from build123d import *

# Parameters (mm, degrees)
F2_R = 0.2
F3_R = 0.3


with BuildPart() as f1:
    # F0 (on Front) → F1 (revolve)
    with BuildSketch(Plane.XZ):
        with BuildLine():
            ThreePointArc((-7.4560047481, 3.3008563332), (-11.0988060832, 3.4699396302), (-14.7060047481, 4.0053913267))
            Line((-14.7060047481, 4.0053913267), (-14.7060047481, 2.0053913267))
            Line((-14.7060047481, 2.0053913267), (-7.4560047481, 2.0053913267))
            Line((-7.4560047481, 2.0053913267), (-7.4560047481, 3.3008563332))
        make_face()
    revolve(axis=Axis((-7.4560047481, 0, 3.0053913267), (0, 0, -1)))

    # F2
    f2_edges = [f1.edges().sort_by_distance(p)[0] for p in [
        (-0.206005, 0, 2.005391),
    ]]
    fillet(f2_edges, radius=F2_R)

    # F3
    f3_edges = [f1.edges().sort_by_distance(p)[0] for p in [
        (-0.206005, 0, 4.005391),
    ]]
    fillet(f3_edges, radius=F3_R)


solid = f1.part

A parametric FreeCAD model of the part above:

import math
import FreeCAD as App
import Part
import Sketcher

V = App.Vector


def edges_at(feature, points):
    """Names of the edges that pass closest to the given points."""
    edges = feature.Shape.Edges
    near = lambda p: min(range(len(edges)), key=lambda i: edges[i].distToShape(Part.Vertex(*p))[0])
    return sorted({f"Edge{near(p) + 1}" for p in points})

doc = App.newDocument("Part")
body = doc.addObject("PartDesign::Body", "Body")

# Sketch on XZ plane
sketch1 = body.newObject("Sketcher::SketchObject", "Sketch")
sketch1.AttachmentSupport = (doc.getObject("XZ_Plane"), [""])
sketch1.MapMode = "FlatFace"
sketch1.addGeometry(Part.ArcOfCircle(Part.Circle(V(-7.6, 39.4, 0), V(0, 0, 1), 36.1), math.radians(-101.34), math.radians(-89.76)), False)
sketch1.addGeometry(Part.LineSegment(V(-14.7, 4, 0), V(-14.7, 2, 0)), False)
sketch1.addGeometry(Part.LineSegment(V(-14.7, 2, 0), V(-7.5, 2, 0)), False)
sketch1.addGeometry(Part.LineSegment(V(-7.5, 2, 0), V(-7.5, 3.3, 0)), False)
sketch1.addGeometry(Part.LineSegment(V(-7.5, 39.4, 0), V(-7.5, 2, 0)), True)  # axis
sketch1.addConstraint(Sketcher.Constraint("Coincident", 0, 1, 1, 1))
sketch1.addConstraint(Sketcher.Constraint("Coincident", 1, 2, 2, 1))
sketch1.addConstraint(Sketcher.Constraint("Coincident", 2, 2, 3, 1))
sketch1.addConstraint(Sketcher.Constraint("Coincident", 3, 2, 0, 2))
sketch1.addConstraint(Sketcher.Constraint("Vertical", 1))
sketch1.addConstraint(Sketcher.Constraint("Horizontal", 2))
sketch1.addConstraint(Sketcher.Constraint("Vertical", 3))
sketch1.addConstraint(Sketcher.Constraint("Vertical", 4))
sketch1.addConstraint(Sketcher.Constraint("Coincident", 4, 2, 2, 2))
sketch1.addConstraint(Sketcher.Constraint("Horizontal", 0, 3, 4, 1))
sketch1.addConstraint(Sketcher.Constraint("DistanceY", 1, 2, 1, 1, 2.0))
sketch1.addConstraint(Sketcher.Constraint("DistanceX", 2, 1, 2, 2, 7.25))
sketch1.addConstraint(Sketcher.Constraint("Radius", 0, 36.128225))
sketch1.addConstraint(Sketcher.Constraint("DistanceY", 3, 1, 3, 2, 1.295465))
sketch1.addConstraint(Sketcher.Constraint("DistanceY", -1, 1, 0, 1, 4.005391))
sketch1.addConstraint(Sketcher.Constraint("DistanceX", 0, 3, -1, 1, 7.604426))
revolution = body.newObject("PartDesign::Revolution", "Revolution")
revolution.Profile = sketch1
revolution.ReferenceAxis = (sketch1, ["Axis0"])
revolution.Angle = 360
doc.recompute()

fillet = body.newObject("PartDesign::Fillet", "Fillet")
fillet.Base = (revolution, edges_at(revolution, [(-0.206, 0, 2.005)]))
fillet.Radius = 0.2
doc.recompute()

fillet2 = body.newObject("PartDesign::Fillet", "Fillet001")
fillet2.Base = (fillet, edges_at(fillet, [(-0.206, 0, 4.005)]))
fillet2.Radius = 0.3

doc.recompute()
